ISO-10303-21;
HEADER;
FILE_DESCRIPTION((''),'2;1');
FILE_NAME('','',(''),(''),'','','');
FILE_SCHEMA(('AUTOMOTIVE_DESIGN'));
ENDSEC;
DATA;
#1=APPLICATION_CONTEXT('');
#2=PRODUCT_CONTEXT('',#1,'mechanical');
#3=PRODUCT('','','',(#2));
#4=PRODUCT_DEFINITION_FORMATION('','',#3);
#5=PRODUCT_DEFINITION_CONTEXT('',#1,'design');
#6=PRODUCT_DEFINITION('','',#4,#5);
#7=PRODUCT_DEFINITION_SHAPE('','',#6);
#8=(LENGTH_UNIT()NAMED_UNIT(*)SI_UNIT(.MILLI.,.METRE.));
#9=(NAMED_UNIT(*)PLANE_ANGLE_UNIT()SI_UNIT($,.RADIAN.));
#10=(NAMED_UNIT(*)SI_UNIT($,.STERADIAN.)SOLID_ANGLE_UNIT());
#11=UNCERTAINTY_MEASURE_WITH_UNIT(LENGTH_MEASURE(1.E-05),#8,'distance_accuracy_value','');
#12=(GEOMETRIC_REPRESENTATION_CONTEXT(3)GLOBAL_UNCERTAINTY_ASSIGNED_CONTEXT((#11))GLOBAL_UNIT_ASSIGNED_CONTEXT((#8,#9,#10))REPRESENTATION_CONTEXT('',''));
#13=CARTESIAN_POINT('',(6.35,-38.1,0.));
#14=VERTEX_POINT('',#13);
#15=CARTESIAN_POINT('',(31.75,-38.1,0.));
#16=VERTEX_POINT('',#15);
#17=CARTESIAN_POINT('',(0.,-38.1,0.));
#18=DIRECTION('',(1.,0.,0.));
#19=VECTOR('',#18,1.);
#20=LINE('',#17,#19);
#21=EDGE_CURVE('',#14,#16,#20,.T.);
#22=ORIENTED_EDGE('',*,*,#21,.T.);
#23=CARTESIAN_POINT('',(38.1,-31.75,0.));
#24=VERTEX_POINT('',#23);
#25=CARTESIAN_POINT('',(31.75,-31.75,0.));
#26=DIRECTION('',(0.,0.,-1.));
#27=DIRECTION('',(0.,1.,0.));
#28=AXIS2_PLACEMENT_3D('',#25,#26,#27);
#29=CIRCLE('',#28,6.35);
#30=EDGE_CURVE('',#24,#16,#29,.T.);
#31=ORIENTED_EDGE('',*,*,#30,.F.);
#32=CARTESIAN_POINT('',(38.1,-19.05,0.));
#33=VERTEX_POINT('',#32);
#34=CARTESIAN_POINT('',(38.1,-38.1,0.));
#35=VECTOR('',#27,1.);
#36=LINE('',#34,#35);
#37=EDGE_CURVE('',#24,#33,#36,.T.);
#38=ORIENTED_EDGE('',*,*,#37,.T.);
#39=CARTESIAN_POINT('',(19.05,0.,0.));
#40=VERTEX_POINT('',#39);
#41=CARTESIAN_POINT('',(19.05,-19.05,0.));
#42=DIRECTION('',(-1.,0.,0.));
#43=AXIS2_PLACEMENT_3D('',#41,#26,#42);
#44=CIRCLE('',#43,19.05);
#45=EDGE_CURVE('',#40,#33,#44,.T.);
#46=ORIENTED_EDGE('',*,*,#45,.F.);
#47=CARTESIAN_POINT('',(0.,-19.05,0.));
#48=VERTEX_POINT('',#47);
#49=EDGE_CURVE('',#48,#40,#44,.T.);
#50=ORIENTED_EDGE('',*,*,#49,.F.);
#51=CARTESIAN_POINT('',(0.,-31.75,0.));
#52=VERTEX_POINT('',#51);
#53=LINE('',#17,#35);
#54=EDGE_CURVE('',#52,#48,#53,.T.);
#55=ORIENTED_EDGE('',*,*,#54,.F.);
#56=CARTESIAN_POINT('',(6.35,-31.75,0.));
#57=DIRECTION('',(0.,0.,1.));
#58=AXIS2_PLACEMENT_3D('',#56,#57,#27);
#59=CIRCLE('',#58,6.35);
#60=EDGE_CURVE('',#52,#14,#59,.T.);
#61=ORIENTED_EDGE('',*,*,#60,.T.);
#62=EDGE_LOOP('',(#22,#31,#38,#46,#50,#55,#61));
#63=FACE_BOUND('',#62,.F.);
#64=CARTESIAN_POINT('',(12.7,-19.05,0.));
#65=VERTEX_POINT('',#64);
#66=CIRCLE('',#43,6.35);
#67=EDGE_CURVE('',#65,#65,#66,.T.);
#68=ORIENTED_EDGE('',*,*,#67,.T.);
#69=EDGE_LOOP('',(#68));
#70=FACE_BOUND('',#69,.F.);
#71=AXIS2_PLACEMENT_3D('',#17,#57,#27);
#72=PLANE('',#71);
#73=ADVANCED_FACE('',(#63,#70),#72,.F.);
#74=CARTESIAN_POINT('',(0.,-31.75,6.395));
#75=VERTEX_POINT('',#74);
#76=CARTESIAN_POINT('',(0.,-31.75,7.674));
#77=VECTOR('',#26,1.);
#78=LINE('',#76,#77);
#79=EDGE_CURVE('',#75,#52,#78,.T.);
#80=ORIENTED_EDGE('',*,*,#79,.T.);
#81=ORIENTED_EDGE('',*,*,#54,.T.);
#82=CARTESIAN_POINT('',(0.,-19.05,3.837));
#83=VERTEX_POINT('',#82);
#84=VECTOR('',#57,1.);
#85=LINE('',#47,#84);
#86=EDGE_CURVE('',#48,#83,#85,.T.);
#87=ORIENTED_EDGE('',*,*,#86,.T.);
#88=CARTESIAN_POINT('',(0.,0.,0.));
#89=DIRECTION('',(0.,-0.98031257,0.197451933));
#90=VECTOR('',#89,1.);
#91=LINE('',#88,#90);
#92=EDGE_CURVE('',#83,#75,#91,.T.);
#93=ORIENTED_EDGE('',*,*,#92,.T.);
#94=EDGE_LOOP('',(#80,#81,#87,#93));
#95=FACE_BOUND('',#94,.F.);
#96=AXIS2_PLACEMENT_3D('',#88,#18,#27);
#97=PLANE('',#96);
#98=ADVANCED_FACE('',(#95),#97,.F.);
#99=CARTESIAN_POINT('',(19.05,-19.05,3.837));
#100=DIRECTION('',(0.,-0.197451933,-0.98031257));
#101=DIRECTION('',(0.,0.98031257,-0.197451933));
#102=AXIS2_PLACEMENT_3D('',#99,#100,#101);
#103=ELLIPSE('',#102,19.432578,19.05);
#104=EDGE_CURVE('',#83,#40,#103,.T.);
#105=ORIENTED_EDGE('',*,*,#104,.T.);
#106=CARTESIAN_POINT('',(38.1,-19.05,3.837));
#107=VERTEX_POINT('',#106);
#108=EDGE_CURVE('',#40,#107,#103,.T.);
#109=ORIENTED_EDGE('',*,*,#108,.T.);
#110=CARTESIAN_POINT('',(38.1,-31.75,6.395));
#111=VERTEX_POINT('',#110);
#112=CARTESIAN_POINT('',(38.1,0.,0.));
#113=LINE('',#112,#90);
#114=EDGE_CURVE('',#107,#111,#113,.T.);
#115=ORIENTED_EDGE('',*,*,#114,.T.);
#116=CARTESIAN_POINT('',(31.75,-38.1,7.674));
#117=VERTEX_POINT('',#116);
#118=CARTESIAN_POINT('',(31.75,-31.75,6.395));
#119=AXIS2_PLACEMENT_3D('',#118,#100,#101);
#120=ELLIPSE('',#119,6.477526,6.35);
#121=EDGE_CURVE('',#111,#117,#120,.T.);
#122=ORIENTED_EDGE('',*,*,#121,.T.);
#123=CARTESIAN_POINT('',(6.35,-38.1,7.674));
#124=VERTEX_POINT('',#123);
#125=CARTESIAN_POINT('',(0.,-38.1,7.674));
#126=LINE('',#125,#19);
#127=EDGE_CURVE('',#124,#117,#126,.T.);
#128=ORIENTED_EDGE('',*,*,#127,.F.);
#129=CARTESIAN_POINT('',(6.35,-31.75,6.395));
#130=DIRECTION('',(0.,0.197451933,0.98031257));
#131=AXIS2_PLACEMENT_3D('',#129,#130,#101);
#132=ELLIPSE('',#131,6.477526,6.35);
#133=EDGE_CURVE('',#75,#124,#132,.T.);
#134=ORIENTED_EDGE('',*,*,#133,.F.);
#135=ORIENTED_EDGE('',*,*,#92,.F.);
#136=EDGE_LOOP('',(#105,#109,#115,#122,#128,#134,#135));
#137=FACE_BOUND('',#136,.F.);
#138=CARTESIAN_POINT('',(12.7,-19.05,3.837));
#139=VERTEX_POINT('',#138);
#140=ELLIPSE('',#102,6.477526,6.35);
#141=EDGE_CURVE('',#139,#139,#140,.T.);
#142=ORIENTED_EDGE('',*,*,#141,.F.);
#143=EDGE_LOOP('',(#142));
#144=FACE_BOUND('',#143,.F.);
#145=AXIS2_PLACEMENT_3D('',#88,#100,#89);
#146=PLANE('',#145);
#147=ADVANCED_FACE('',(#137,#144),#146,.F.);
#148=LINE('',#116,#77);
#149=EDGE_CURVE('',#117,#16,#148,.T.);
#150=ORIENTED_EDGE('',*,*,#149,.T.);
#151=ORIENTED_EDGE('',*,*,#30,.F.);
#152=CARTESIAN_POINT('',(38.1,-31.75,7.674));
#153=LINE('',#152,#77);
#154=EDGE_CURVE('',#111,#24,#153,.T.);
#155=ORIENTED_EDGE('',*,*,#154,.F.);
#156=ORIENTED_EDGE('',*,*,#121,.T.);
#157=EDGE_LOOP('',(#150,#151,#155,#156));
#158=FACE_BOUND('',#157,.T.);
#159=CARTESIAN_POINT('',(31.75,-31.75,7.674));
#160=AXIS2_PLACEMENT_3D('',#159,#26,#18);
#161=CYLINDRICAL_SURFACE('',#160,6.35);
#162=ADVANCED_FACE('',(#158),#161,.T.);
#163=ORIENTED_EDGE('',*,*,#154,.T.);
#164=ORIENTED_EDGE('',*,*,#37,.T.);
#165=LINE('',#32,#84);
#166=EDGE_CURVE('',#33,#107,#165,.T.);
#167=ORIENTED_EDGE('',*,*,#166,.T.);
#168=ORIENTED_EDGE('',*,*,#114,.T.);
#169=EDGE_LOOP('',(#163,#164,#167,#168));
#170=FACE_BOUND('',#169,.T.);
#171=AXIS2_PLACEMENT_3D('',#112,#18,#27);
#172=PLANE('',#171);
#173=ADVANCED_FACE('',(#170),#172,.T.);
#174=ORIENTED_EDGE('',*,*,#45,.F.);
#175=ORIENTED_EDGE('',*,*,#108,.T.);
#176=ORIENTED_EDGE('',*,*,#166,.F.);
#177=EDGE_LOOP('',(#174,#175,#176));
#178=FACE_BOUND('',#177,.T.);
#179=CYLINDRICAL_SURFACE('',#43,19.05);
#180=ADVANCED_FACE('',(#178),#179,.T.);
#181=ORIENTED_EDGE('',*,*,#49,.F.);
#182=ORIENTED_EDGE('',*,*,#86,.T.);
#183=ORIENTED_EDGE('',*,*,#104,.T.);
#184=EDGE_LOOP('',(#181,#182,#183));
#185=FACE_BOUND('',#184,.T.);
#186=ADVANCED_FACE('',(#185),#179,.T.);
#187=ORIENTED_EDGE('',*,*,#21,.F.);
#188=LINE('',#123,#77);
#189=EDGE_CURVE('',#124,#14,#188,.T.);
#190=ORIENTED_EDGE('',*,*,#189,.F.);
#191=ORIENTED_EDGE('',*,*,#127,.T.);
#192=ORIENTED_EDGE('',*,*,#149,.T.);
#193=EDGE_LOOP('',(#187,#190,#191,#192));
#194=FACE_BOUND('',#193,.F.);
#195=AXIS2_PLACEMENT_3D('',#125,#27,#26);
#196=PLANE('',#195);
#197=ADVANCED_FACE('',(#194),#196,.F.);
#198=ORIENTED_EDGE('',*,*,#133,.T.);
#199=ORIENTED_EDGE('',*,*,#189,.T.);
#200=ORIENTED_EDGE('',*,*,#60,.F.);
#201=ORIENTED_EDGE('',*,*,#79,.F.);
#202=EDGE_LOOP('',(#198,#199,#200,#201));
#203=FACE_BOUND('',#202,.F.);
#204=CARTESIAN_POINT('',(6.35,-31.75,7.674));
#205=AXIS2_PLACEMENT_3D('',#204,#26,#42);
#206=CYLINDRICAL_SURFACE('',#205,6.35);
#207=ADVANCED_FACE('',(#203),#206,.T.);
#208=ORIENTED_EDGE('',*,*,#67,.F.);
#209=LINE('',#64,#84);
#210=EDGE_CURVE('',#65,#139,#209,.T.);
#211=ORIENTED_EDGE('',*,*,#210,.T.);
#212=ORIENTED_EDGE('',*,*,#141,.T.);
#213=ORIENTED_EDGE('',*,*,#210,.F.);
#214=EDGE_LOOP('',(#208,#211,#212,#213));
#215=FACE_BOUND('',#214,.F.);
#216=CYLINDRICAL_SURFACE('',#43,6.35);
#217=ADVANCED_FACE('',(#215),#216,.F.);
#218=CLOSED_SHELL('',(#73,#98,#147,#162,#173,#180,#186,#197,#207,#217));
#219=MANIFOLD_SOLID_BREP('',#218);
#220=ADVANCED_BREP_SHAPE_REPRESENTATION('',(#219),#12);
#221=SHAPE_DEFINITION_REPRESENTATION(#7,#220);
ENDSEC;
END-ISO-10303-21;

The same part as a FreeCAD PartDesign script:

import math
import FreeCAD as App
import Part
import Sketcher
from FreeCAD import Vector
Q = App.Units.Quantity


def edges_at(feature, points):
    """Names of the edges that pass closest to the given points."""
    edges = feature.Shape.Edges
    near = lambda p: min(range(len(edges)), key=lambda i: edges[i].distToShape(Part.Vertex(*p))[0])
    return sorted({f"Edge{near(p) + 1}" for p in points})

doc = App.newDocument("Part")
body = doc.addObject("PartDesign::Body", "Body")

sketch1 = body.newObject("Sketcher::SketchObject", "Sketch")
sketch1.AttachmentSupport = (doc.getObject("YZ_Plane"), [""])
sketch1.MapMode = "FlatFace"
sketch1.addGeometry([
    Part.LineSegment(Vector(-38, 0, 0), Vector(0, 0, 0)),
    Part.LineSegment(Vector(0, 0, 0), Vector(-38, 8, 0)),
    Part.LineSegment(Vector(-38, 8, 0), Vector(-38, 0, 0)),
], False)
sketch1.addConstraint([
    Sketcher.Constraint("Coincident", 0, 2, 1, 1),
    Sketcher.Constraint("Coincident", 1, 2, 2, 1),
    Sketcher.Constraint("Coincident", 2, 2, 0, 1),
    Sketcher.Constraint("Horizontal", 0),
    Sketcher.Constraint("Vertical", 2),
    Sketcher.Constraint("Coincident", 0, 2, -1, 1),
    Sketcher.Constraint("DistanceX", 0, 1, 0, 2, Q("1.5 in")),
    Sketcher.Constraint("DistanceY", 2, 2, 2, 1, 7.674),
])
pad1 = body.newObject("PartDesign::Pad", "Pad")
pad1.Profile = sketch1
pad1.Length = Q("1.5 in")

sketch2 = body.newObject("Sketcher::SketchObject", "Sketch001")
sketch2.AttachmentSupport = (doc.getObject("XY_Plane"), [""])
sketch2.MapMode = "FlatFace"
sketch2.addGeometry([
    Part.ArcOfCircle(Part.Circle(Vector(19, -19, 0), Vector(0, 0, 1), 19), math.radians(90), math.radians(180)),
    Part.LineSegment(Vector(0, -19, 0), Vector(0, 0, 0)),
    Part.LineSegment(Vector(0, 0, 0), Vector(19, 0, 0)),
    Part.ArcOfCircle(Part.Circle(Vector(19, -19, 0), Vector(0, 0, 1), 19), math.radians(0), math.radians(90)),
    Part.LineSegment(Vector(19, 0, 0), Vector(38, 0, 0)),
    Part.LineSegment(Vector(38, 0, 0), Vector(38, -19, 0)),
    Part.Circle(Vector(19, -19, 0), Vector(0, 0, 1), 6),
], False)
sketch2.addConstraint([
    Sketcher.Constraint("Tangent", 0, 2, 1, 1),
    Sketcher.Constraint("Coincident", 1, 2, 2, 1),
    Sketcher.Constraint("Tangent", 2, 2, 0, 1),
    Sketcher.Constraint("Tangent", 3, 2, 4, 1),
    Sketcher.Constraint("Coincident", 4, 2, 5, 1),
    Sketcher.Constraint("Tangent", 5, 2, 3, 1),
    Sketcher.Constraint("Vertical", 1),
    Sketcher.Constraint("Horizontal", 2),
    Sketcher.Constraint("Horizontal", 4),
    Sketcher.Constraint("Vertical", 5),
    Sketcher.Constraint("Coincident", 1, 2, -1, 1),
    Sketcher.Constraint("Coincident", 3, 3, 0, 3),
    Sketcher.Constraint("Coincident", 6, 3, 0, 3),
    Sketcher.Constraint("Equal", 0, 3),
    Sketcher.Constraint("Diameter", 6, Q("0.5 in")),
    Sketcher.Constraint("Radius", 0, Q("0.75 in")),
])
pocket1 = body.newObject("PartDesign::Pocket", "Pocket")
pocket1.Profile = sketch2
pocket1.Type = "ThroughAll"
pocket1.Reversed = True
doc.recompute()

fillet = body.newObject("PartDesign::Fillet", "Fillet")
fillet.Base = (pocket1, edges_at(pocket1, [(38.1, -38.1, 3.837), (0, -38.1, 3.837)]))
fillet.Radius = Q("0.25 in")

doc.recompute()
